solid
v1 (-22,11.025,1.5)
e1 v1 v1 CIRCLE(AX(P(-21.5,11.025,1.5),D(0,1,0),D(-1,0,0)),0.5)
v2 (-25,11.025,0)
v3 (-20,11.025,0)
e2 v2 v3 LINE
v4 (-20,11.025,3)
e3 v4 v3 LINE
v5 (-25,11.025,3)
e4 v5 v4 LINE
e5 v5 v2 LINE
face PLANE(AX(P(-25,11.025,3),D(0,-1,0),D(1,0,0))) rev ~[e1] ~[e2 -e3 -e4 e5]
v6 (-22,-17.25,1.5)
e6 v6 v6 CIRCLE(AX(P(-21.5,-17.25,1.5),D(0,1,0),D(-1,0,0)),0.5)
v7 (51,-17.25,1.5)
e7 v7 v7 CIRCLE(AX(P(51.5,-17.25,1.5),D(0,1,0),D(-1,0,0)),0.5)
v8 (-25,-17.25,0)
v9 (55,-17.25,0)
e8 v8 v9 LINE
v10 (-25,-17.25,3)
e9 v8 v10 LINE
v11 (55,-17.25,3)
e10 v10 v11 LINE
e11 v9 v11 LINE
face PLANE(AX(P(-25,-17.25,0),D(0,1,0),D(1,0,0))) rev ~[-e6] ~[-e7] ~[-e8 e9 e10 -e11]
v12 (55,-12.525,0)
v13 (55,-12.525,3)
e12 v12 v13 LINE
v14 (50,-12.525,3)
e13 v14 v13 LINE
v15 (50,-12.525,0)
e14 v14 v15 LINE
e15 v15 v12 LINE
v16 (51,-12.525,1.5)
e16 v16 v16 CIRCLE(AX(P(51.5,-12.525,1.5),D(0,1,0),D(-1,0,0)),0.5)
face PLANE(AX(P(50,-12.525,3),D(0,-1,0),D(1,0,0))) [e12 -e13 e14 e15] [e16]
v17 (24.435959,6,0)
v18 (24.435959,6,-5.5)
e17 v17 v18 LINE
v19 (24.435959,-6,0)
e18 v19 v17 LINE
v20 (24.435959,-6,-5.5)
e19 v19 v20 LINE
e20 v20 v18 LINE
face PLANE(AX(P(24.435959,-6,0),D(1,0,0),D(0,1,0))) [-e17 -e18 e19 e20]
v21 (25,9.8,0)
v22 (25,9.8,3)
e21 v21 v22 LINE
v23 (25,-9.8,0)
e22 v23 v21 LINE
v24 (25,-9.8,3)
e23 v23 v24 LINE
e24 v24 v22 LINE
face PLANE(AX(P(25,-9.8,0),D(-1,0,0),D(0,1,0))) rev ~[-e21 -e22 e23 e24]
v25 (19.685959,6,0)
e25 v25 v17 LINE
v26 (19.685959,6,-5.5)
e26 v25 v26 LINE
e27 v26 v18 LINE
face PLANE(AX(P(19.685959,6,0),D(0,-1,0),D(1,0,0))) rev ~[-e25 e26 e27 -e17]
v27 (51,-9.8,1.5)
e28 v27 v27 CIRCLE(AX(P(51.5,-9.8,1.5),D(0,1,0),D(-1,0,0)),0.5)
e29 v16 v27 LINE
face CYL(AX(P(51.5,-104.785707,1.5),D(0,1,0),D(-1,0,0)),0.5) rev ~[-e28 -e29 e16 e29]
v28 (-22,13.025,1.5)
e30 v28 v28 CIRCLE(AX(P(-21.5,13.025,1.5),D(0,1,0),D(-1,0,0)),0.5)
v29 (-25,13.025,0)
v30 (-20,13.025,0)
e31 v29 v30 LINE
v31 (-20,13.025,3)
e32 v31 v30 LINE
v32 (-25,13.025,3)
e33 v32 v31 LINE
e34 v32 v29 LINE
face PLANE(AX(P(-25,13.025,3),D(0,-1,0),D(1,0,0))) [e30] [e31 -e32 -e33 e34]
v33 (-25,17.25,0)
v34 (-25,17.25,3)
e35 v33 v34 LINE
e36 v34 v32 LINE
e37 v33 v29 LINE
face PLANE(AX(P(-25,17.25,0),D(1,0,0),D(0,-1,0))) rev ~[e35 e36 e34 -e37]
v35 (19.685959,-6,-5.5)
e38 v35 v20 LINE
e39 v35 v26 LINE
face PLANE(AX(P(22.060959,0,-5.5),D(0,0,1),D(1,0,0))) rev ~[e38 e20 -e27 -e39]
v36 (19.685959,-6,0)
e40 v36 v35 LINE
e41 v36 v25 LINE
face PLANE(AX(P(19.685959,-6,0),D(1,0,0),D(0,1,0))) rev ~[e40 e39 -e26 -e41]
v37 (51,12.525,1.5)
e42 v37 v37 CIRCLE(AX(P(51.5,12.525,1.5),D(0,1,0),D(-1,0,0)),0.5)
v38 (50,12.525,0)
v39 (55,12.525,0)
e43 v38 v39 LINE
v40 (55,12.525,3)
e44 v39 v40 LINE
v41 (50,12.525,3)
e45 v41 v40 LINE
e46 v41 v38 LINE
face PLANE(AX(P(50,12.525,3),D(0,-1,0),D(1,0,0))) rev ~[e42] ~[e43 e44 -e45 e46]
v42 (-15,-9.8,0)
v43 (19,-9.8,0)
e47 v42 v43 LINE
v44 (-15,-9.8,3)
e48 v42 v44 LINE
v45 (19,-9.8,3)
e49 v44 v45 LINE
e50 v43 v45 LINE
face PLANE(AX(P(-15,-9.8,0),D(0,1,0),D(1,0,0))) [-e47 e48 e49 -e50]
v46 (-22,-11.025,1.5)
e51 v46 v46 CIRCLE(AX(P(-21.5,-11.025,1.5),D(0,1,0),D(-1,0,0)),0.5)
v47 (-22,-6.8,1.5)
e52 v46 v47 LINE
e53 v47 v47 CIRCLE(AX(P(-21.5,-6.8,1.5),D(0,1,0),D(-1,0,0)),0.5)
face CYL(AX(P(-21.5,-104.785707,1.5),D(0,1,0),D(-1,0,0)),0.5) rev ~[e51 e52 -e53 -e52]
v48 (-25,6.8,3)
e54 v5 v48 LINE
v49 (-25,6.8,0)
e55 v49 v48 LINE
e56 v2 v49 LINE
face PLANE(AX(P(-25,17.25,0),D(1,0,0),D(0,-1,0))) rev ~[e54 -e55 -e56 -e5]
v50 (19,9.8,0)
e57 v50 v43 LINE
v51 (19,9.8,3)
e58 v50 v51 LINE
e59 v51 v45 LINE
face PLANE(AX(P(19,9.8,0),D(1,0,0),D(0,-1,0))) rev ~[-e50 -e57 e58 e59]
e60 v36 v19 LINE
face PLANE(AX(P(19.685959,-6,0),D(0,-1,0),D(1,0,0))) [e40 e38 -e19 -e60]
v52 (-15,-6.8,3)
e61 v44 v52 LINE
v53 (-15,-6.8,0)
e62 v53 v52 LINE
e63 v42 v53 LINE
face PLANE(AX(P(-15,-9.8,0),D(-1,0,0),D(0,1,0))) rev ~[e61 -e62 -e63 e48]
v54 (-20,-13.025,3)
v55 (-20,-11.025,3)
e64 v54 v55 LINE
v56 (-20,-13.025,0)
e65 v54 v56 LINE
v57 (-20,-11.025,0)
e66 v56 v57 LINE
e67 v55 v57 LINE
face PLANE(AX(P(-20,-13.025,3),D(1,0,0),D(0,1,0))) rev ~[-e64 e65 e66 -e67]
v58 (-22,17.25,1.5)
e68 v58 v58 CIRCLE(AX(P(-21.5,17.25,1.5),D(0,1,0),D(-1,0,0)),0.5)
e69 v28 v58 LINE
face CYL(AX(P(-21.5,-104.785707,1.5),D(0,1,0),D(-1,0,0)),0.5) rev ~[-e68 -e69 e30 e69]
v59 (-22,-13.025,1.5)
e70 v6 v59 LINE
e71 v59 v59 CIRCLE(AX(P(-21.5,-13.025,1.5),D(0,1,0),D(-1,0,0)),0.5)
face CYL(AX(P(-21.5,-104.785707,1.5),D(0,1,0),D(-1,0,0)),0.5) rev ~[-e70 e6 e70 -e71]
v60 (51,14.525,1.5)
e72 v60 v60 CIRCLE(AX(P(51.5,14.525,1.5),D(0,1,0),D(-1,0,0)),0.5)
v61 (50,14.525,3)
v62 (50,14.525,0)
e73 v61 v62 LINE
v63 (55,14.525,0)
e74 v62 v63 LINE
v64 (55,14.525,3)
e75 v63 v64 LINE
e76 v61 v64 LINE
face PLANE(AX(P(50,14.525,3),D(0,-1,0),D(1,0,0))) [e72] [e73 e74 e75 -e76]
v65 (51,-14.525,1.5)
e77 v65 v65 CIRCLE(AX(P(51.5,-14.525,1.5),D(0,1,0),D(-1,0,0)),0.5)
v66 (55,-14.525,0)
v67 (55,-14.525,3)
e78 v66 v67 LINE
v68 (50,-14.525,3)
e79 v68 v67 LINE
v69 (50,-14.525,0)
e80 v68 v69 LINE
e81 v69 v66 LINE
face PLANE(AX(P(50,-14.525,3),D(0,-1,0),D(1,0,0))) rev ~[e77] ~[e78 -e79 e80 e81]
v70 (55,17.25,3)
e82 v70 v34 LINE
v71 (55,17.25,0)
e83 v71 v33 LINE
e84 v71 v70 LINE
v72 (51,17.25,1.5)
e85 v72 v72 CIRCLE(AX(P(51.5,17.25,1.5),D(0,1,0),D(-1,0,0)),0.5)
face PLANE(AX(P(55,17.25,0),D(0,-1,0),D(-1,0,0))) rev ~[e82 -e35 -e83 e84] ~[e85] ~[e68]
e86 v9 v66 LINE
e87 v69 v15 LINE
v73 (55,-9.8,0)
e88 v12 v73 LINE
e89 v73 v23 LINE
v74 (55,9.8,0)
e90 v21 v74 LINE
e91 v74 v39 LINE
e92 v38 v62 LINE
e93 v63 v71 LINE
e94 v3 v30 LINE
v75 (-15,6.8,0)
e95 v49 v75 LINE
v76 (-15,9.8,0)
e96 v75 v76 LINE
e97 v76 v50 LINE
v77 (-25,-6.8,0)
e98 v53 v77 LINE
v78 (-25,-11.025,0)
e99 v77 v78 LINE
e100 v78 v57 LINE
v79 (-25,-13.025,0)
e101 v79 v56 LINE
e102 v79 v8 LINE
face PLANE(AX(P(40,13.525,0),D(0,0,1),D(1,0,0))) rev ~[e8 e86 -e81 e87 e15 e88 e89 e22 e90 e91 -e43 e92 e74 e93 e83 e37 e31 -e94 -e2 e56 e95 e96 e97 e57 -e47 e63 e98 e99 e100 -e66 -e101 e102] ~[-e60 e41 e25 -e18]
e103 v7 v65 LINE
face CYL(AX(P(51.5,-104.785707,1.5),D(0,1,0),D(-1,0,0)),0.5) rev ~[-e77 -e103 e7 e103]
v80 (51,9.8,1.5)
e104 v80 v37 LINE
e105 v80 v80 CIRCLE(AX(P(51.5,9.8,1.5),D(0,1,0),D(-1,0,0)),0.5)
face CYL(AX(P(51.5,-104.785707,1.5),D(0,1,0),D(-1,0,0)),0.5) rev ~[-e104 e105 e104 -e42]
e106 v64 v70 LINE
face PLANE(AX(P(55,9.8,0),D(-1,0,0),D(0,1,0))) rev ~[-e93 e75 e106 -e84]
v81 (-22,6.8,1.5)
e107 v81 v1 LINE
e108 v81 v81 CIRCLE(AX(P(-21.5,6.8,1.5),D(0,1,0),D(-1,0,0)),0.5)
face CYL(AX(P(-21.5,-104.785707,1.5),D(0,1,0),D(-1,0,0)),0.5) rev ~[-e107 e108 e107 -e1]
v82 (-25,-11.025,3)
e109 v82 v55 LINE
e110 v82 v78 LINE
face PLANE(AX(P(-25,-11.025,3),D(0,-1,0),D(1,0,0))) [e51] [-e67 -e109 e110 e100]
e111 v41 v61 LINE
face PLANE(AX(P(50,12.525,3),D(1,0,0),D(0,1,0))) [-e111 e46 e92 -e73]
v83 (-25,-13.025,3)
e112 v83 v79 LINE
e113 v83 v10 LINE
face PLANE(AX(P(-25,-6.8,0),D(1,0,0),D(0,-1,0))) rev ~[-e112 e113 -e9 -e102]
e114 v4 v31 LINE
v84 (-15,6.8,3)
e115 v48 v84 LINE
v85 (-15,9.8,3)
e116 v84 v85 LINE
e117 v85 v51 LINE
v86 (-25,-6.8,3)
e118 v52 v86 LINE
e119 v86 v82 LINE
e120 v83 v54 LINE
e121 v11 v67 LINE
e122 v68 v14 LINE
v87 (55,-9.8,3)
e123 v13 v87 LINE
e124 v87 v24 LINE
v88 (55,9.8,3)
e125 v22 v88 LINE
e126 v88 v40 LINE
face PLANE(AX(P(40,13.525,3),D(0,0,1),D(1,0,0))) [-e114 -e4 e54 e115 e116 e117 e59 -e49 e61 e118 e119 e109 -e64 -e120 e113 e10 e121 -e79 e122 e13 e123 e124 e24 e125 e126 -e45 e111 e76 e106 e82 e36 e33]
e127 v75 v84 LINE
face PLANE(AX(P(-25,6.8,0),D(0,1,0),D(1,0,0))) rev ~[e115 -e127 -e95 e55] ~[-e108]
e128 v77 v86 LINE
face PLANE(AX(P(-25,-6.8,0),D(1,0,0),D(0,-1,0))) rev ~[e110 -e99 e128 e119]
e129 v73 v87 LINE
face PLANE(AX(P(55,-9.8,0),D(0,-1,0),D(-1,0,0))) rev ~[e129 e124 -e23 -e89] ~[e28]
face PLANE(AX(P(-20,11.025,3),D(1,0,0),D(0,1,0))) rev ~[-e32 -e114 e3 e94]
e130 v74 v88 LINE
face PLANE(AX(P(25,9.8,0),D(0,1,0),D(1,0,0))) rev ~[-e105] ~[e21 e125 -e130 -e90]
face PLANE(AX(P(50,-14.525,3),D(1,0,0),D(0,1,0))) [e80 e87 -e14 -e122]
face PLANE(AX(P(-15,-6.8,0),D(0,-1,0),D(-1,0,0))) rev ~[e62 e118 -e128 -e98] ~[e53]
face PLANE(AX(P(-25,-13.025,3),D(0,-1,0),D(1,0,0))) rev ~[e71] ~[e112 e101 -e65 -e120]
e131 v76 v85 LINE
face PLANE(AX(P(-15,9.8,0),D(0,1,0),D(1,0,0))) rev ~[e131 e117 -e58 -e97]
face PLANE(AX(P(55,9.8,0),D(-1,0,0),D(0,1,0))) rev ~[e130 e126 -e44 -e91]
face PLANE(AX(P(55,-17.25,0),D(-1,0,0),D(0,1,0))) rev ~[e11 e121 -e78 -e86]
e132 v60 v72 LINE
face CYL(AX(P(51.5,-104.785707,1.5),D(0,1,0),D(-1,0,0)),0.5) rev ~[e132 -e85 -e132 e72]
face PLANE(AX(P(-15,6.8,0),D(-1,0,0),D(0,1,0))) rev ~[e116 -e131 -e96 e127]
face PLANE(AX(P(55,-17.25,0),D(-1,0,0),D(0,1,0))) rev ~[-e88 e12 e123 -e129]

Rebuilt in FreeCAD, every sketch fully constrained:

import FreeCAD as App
import Part
import Sketcher

V = App.Vector
Q = App.Units.Quantity

doc = App.newDocument("Part")
params = doc.addObject("Spreadsheet::Sheet", "Params")
for row, (alias, value) in enumerate([
    ("sketch1_width", "30 mm"),
    ("sketch1_width2", "80 mm"),
    ("sketch1_width3", "10 mm"),
    ("sketch1_width4", "34 mm"),
    ("sketch1_height", "3 mm"),
    ("pad1_length", "3 mm"),
    ("sketch2_height", "12 mm"),
    ("sketch2_width", "4.75 mm"),
    ("pad2_length", "5.5 mm"),
    ("sketch3_width", "5 mm"),
    ("sketch3_height", "2 mm"),
    ("pocket1_length", "25 mm"),
    ("sketch4_diameter", "1 mm"),
    ("hole_diameter", "1 mm"),
    ("sketch5_width", "10 mm"),
    ("sketch5_height", "2 mm"),
    ("pocket2_length", "25 mm"),
], start=1):
    params.set(f"A{row}", alias)
    params.set(f"B{row}", "=" + value)
    params.setAlias(f"B{row}", alias)

body = doc.addObject("PartDesign::Body", "Body")

sketch1 = body.newObject("Sketcher::SketchObject", "Sketch")
sketch1.AttachmentSupport = (doc.getObject("XY_Plane"), [""])
sketch1.MapMode = "FlatFace"
sketch1.addGeometry(Part.LineSegment(V(25, 9.8, 0), V(55, 9.8, 0)), False)
sketch1.addGeometry(Part.LineSegment(V(55, 9.8, 0), V(55, 17.2, 0)), False)
sketch1.addGeometry(Part.LineSegment(V(55, 17.2, 0), V(-25, 17.2, 0)), False)
sketch1.addGeometry(Part.LineSegment(V(-25, 17.2, 0), V(-25, 6.8, 0)), False)
sketch1.addGeometry(Part.LineSegment(V(-25, 6.8, 0), V(-15, 6.8, 0)), False)
sketch1.addGeometry(Part.LineSegment(V(-15, 6.8, 0), V(-15, 9.8, 0)), False)
sketch1.addGeometry(Part.LineSegment(V(-15, 9.8, 0), V(19, 9.8, 0)), False)
sketch1.addGeometry(Part.LineSegment(V(19, 9.8, 0), V(19, -9.8, 0)), False)
sketch1.addGeometry(Part.LineSegment(V(19, -9.8, 0), V(-15, -9.8, 0)), False)
sketch1.addGeometry(Part.LineSegment(V(-15, -9.8, 0), V(-15, -6.8, 0)), False)
sketch1.addGeometry(Part.LineSegment(V(-15, -6.8, 0), V(-25, -6.8, 0)), False)
sketch1.addGeometry(Part.LineSegment(V(-25, -6.8, 0), V(-25, -17.2, 0)), False)
sketch1.addGeometry(Part.LineSegment(V(-25, -17.2, 0), V(55, -17.2, 0)), False)
sketch1.addGeometry(Part.LineSegment(V(55, -17.2, 0), V(55, -9.8, 0)), False)
sketch1.addGeometry(Part.LineSegment(V(55, -9.8, 0), V(25, -9.8, 0)), False)
sketch1.addGeometry(Part.LineSegment(V(25, -9.8, 0), V(25, 9.8, 0)), False)
sketch1.addConstraint(Sketcher.Constraint("Coincident", 0, 2, 1, 1))
sketch1.addConstraint(Sketcher.Constraint("Coincident", 1, 2, 2, 1))
sketch1.addConstraint(Sketcher.Constraint("Coincident", 2, 2, 3, 1))
sketch1.addConstraint(Sketcher.Constraint("Coincident", 3, 2, 4, 1))
sketch1.addConstraint(Sketcher.Constraint("Coincident", 4, 2, 5, 1))
sketch1.addConstraint(Sketcher.Constraint("Coincident", 5, 2, 6, 1))
sketch1.addConstraint(Sketcher.Constraint("Coincident", 6, 2, 7, 1))
sketch1.addConstraint(Sketcher.Constraint("Coincident", 7, 2, 8, 1))
sketch1.addConstraint(Sketcher.Constraint("Coincident", 8, 2, 9, 1))
sketch1.addConstraint(Sketcher.Constraint("Coincident", 9, 2, 10, 1))
sketch1.addConstraint(Sketcher.Constraint("Coincident", 10, 2, 11, 1))
sketch1.addConstraint(Sketcher.Constraint("Coincident", 11, 2, 12, 1))
sketch1.addConstraint(Sketcher.Constraint("Coincident", 12, 2, 13, 1))
sketch1.addConstraint(Sketcher.Constraint("Coincident", 13, 2, 14, 1))
sketch1.addConstraint(Sketcher.Constraint("Coincident", 14, 2, 15, 1))
sketch1.addConstraint(Sketcher.Constraint("Coincident", 15, 2, 0, 1))
sketch1.addConstraint(Sketcher.Constraint("Horizontal", 0))
sketch1.addConstraint(Sketcher.Constraint("Vertical", 1))
sketch1.addConstraint(Sketcher.Constraint("Horizontal", 2))
sketch1.addConstraint(Sketcher.Constraint("Vertical", 3))
sketch1.addConstraint(Sketcher.Constraint("Horizontal", 4))
sketch1.addConstraint(Sketcher.Constraint("Vertical", 5))
sketch1.addConstraint(Sketcher.Constraint("Horizontal", 6))
sketch1.addConstraint(Sketcher.Constraint("Vertical", 7))
sketch1.addConstraint(Sketcher.Constraint("Horizontal", 8))
sketch1.addConstraint(Sketcher.Constraint("Vertical", 9))
sketch1.addConstraint(Sketcher.Constraint("Horizontal", 10))
sketch1.addConstraint(Sketcher.Constraint("Vertical", 11))
sketch1.addConstraint(Sketcher.Constraint("Horizontal", 12))
sketch1.addConstraint(Sketcher.Constraint("Vertical", 13))
sketch1.addConstraint(Sketcher.Constraint("Horizontal", 14))
sketch1.addConstraint(Sketcher.Constraint("Vertical", 15))
sketch1.addConstraint(Sketcher.Constraint("Symmetric", 5, 2, 8, 2, -1))
sketch1.addConstraint(Sketcher.Constraint("Symmetric", 3, 2, 10, 2, -1))
sketch1.addConstraint(Sketcher.Constraint("Symmetric", 1, 2, 12, 2, -1))
sketch1.addConstraint(Sketcher.Constraint("Horizontal", 0, 2, 5, 2))
sketch1.addConstraint(Sketcher.Constraint("Horizontal", 8, 2, 13, 2))
sketch1.addConstraint(Sketcher.Constraint("DistanceX", 0, 1, 0, 2, Q("30 mm")))
sketch1.addConstraint(Sketcher.Constraint("DistanceX", 2, 2, 2, 1, Q("80 mm")))
sketch1.addConstraint(Sketcher.Constraint("DistanceX", 4, 1, 4, 2, Q("10 mm")))
sketch1.addConstraint(Sketcher.Constraint("DistanceX", 6, 1, 6, 2, Q("34 mm")))
sketch1.addConstraint(Sketcher.Constraint("DistanceY", 5, 1, 5, 2, Q("3 mm")))
sketch1.addConstraint(Sketcher.Constraint("DistanceY", 7, 2, 7, 1, Q("19.6 mm")))
sketch1.addConstraint(Sketcher.Constraint("DistanceX", -1, 1, 0, 2, Q("55 mm")))
sketch1.addConstraint(Sketcher.Constraint("DistanceY", 1, 1, 1, 2, Q("7.45 mm")))
sketch1.setExpression("Constraints[37]", "Params.sketch1_width")
sketch1.setExpression("Constraints[38]", "Params.sketch1_width2")
sketch1.setExpression("Constraints[39]", "Params.sketch1_width3")
sketch1.setExpression("Constraints[40]", "Params.sketch1_width4")
sketch1.setExpression("Constraints[41]", "Params.sketch1_height")
pad1 = body.newObject("PartDesign::Pad", "Pad")
pad1.Profile = sketch1
pad1.setExpression("Length", "Params.pad1_length")

sketch2 = body.newObject("Sketcher::SketchObject", "Sketch001")
sketch2.AttachmentSupport = (doc.getObject("XY_Plane"), [""])
sketch2.MapMode = "FlatFace"
sketch2.addGeometry(Part.LineSegment(V(19.7, 6, 0), V(19.7, -6, 0)), False)
sketch2.addGeometry(Part.LineSegment(V(19.7, -6, 0), V(24.4, -6, 0)), False)
sketch2.addGeometry(Part.LineSegment(V(24.4, -6, 0), V(24.4, 6, 0)), False)
sketch2.addGeometry(Part.LineSegment(V(24.4, 6, 0), V(19.7, 6, 0)), False)
sketch2.addConstraint(Sketcher.Constraint("Coincident", 0, 2, 1, 1))
sketch2.addConstraint(Sketcher.Constraint("Coincident", 1, 2, 2, 1))
sketch2.addConstraint(Sketcher.Constraint("Coincident", 2, 2, 3, 1))
sketch2.addConstraint(Sketcher.Constraint("Coincident", 3, 2, 0, 1))
sketch2.addConstraint(Sketcher.Constraint("Vertical", 0))
sketch2.addConstraint(Sketcher.Constraint("Horizontal", 1))
sketch2.addConstraint(Sketcher.Constraint("Vertical", 2))
sketch2.addConstraint(Sketcher.Constraint("Horizontal", 3))
sketch2.addConstraint(Sketcher.Constraint("DistanceY", 0, 2, 0, 1, Q("12 mm")))
sketch2.addConstraint(Sketcher.Constraint("DistanceY", 0, 2, -1, 1, Q("6 mm")))
sketch2.addConstraint(Sketcher.Constraint("DistanceX", 1, 1, 1, 2, Q("4.75 mm")))
sketch2.addConstraint(Sketcher.Constraint("DistanceX", -1, 1, 0, 2, Q("19.685959 mm")))
sketch2.setExpression("Constraints[8]", "Params.sketch2_height")
sketch2.setExpression("Constraints[10]", "Params.sketch2_width")
pad2 = body.newObject("PartDesign::Pad", "Pad001")
pad2.Profile = sketch2
pad2.setExpression("Length", "Params.pad2_length")
pad2.Reversed = True

sketch3 = body.newObject("Sketcher::SketchObject", "Sketch002")
sketch3.AttachmentSupport = (doc.getObject("XY_Plane"), [""])
sketch3.MapMode = "FlatFace"
sketch3.AttachmentOffset = App.Placement(V(0, 0, 3), App.Rotation())
sketch3.addGeometry(Part.LineSegment(V(-25, 13, 0), V(-25, 11, 0)), False)
sketch3.addGeometry(Part.LineSegment(V(-25, 11, 0), V(-20, 11, 0)), False)
sketch3.addGeometry(Part.LineSegment(V(-20, 11, 0), V(-20, 13, 0)), False)
sketch3.addGeometry(Part.LineSegment(V(-20, 13, 0), V(-25, 13, 0)), False)
sketch3.addGeometry(Part.LineSegment(V(-25, -11, 0), V(-25, -13, 0)), False)
sketch3.addGeometry(Part.LineSegment(V(-25, -13, 0), V(-20, -13, 0)), False)
sketch3.addGeometry(Part.LineSegment(V(-20, -13, 0), V(-20, -11, 0)), False)
sketch3.addGeometry(Part.LineSegment(V(-20, -11, 0), V(-25, -11, 0)), False)
sketch3.addConstraint(Sketcher.Constraint("Coincident", 0, 2, 1, 1))
sketch3.addConstraint(Sketcher.Constraint("Coincident", 1, 2, 2, 1))
sketch3.addConstraint(Sketcher.Constraint("Coincident", 2, 2, 3, 1))
sketch3.addConstraint(Sketcher.Constraint("Coincident", 3, 2, 0, 1))
sketch3.addConstraint(Sketcher.Constraint("Coincident", 4, 2, 5, 1))
sketch3.addConstraint(Sketcher.Constraint("Coincident", 5, 2, 6, 1))
sketch3.addConstraint(Sketcher.Constraint("Coincident", 6, 2, 7, 1))
sketch3.addConstraint(Sketcher.Constraint("Coincident", 7, 2, 4, 1))
sketch3.addConstraint(Sketcher.Constraint("Vertical", 0))
sketch3.addConstraint(Sketcher.Constraint("Horizontal", 1))
sketch3.addConstraint(Sketcher.Constraint("Vertical", 2))
sketch3.addConstraint(Sketcher.Constraint("Horizontal", 3))
sketch3.addConstraint(Sketcher.Constraint("Vertical", 4))
sketch3.addConstraint(Sketcher.Constraint("Horizontal", 5))
sketch3.addConstraint(Sketcher.Constraint("Vertical", 6))
sketch3.addConstraint(Sketcher.Constraint("Horizontal", 7))
sketch3.addConstraint(Sketcher.Constraint("Symmetric", 3, 2, 4, 2, -1))
sketch3.addConstraint(Sketcher.Constraint("Symmetric", 1, 2, 6, 2, -1))
sketch3.addConstraint(Sketcher.Constraint("DistanceX", 1, 1, 1, 2, Q("5 mm")))
sketch3.addConstraint(Sketcher.Constraint("DistanceY", 0, 2, 0, 1, Q("2 mm")))
sketch3.addConstraint(Sketcher.Constraint("DistanceX", 0, 2, -1, 1, Q("25 mm")))
sketch3.addConstraint(Sketcher.Constraint("DistanceY", 4, 2, 0, 2, Q("24.05 mm")))
sketch3.setExpression("Constraints[18]", "Params.sketch3_width")
sketch3.setExpression("Constraints[19]", "Params.sketch3_height")
pocket1 = body.newObject("PartDesign::Pocket", "Pocket")
pocket1.Profile = sketch3
pocket1.setExpression("Length", "Params.pocket1_length")

sketch4 = body.newObject("Sketcher::SketchObject", "Sketch003")
sketch4.AttachmentSupport = (doc.getObject("XZ_Plane"), [""])
sketch4.MapMode = "FlatFace"
sketch4.AttachmentOffset = App.Placement(V(0, 0, 17.25), App.Rotation())
sketch4.addGeometry(Part.Circle(V(-21.5, 1.5, 0), V(0, 0, 1), 0.5), False)
sketch4.addGeometry(Part.Circle(V(51.5, 1.5, 0), V(0, 0, 1), 0.5), False)
sketch4.addConstraint(Sketcher.Constraint("Equal", 0, 1))
sketch4.addConstraint(Sketcher.Constraint("Horizontal", 0, 3, 1, 3))
sketch4.addConstraint(Sketcher.Constraint("Diameter", 0, Q("1 mm")))
sketch4.addConstraint(Sketcher.Constraint("DistanceX", 0, 3, 1, 3, Q("73 mm")))
sketch4.addConstraint(Sketcher.Constraint("DistanceX", 0, 3, -1, 1, Q("21.5 mm")))
sketch4.addConstraint(Sketcher.Constraint("DistanceY", -1, 1, 0, 3, Q("1.5 mm")))
sketch4.setExpression("Constraints[2]", "Params.sketch4_diameter")
doc.recompute()
hole = body.newObject("PartDesign::Hole", "Hole")
hole.Profile = sketch4
hole.ThreadType = "None"
hole.setExpression("Diameter", "Params.hole_diameter")
hole.DepthType = "ThroughAll"

sketch5 = body.newObject("Sketcher::SketchObject", "Sketch004")
sketch5.AttachmentSupport = (doc.getObject("XY_Plane"), [""])
sketch5.MapMode = "FlatFace"
sketch5.AttachmentOffset = App.Placement(V(0, 0, 3), App.Rotation())
sketch5.addGeometry(Part.LineSegment(V(50, -12.5, 0), V(50, -14.5, 0)), False)
sketch5.addGeometry(Part.LineSegment(V(50, -14.5, 0), V(60, -14.5, 0)), False)
sketch5.addGeometry(Part.LineSegment(V(60, -14.5, 0), V(60, -12.5, 0)), False)
sketch5.addGeometry(Part.LineSegment(V(60, -12.5, 0), V(50, -12.5, 0)), False)
sketch5.addGeometry(Part.LineSegment(V(50, 14.5, 0), V(50, 12.5, 0)), False)
sketch5.addGeometry(Part.LineSegment(V(50, 12.5, 0), V(60, 12.5, 0)), False)
sketch5.addGeometry(Part.LineSegment(V(60, 12.5, 0), V(60, 14.5, 0)), False)
sketch5.addGeometry(Part.LineSegment(V(60, 14.5, 0), V(50, 14.5, 0)), False)
sketch5.addConstraint(Sketcher.Constraint("Coincident", 0, 2, 1, 1))
sketch5.addConstraint(Sketcher.Constraint("Coincident", 1, 2, 2, 1))
sketch5.addConstraint(Sketcher.Constraint("Coincident", 2, 2, 3, 1))
sketch5.addConstraint(Sketcher.Constraint("Coincident", 3, 2, 0, 1))
sketch5.addConstraint(Sketcher.Constraint("Coincident", 4, 2, 5, 1))
sketch5.addConstraint(Sketcher.Constraint("Coincident", 5, 2, 6, 1))
sketch5.addConstraint(Sketcher.Constraint("Coincident", 6, 2, 7, 1))
sketch5.addConstraint(Sketcher.Constraint("Coincident", 7, 2, 4, 1))
sketch5.addConstraint(Sketcher.Constraint("Vertical", 0))
sketch5.addConstraint(Sketcher.Constraint("Horizontal", 1))
sketch5.addConstraint(Sketcher.Constraint("Vertical", 2))
sketch5.addConstraint(Sketcher.Constraint("Horizontal", 3))
sketch5.addConstraint(Sketcher.Constraint("Vertical", 4))
sketch5.addConstraint(Sketcher.Constraint("Horizontal", 5))
sketch5.addConstraint(Sketcher.Constraint("Vertical", 6))
sketch5.addConstraint(Sketcher.Constraint("Horizontal", 7))
sketch5.addConstraint(Sketcher.Constraint("Symmetric", 3, 2, 4, 2, -1))
sketch5.addConstraint(Sketcher.Constraint("Symmetric", 1, 2, 6, 2, -1))
sketch5.addConstraint(Sketcher.Constraint("DistanceX", 1, 1, 1, 2, Q("10 mm")))
sketch5.addConstraint(Sketcher.Constraint("DistanceY", 0, 2, 0, 1, Q("2 mm")))
sketch5.addConstraint(Sketcher.Constraint("DistanceX", -1, 1, 0, 2, Q("50 mm")))
sketch5.addConstraint(Sketcher.Constraint("DistanceY", 3, 2, 4, 2, Q("25.05 mm")))
sketch5.setExpression("Constraints[18]", "Params.sketch5_width")
sketch5.setExpression("Constraints[19]", "Params.sketch5_height")
pocket2 = body.newObject("PartDesign::Pocket", "Pocket001")
pocket2.Profile = sketch5
pocket2.setExpression("Length", "Params.pocket2_length")

doc.recompute()
